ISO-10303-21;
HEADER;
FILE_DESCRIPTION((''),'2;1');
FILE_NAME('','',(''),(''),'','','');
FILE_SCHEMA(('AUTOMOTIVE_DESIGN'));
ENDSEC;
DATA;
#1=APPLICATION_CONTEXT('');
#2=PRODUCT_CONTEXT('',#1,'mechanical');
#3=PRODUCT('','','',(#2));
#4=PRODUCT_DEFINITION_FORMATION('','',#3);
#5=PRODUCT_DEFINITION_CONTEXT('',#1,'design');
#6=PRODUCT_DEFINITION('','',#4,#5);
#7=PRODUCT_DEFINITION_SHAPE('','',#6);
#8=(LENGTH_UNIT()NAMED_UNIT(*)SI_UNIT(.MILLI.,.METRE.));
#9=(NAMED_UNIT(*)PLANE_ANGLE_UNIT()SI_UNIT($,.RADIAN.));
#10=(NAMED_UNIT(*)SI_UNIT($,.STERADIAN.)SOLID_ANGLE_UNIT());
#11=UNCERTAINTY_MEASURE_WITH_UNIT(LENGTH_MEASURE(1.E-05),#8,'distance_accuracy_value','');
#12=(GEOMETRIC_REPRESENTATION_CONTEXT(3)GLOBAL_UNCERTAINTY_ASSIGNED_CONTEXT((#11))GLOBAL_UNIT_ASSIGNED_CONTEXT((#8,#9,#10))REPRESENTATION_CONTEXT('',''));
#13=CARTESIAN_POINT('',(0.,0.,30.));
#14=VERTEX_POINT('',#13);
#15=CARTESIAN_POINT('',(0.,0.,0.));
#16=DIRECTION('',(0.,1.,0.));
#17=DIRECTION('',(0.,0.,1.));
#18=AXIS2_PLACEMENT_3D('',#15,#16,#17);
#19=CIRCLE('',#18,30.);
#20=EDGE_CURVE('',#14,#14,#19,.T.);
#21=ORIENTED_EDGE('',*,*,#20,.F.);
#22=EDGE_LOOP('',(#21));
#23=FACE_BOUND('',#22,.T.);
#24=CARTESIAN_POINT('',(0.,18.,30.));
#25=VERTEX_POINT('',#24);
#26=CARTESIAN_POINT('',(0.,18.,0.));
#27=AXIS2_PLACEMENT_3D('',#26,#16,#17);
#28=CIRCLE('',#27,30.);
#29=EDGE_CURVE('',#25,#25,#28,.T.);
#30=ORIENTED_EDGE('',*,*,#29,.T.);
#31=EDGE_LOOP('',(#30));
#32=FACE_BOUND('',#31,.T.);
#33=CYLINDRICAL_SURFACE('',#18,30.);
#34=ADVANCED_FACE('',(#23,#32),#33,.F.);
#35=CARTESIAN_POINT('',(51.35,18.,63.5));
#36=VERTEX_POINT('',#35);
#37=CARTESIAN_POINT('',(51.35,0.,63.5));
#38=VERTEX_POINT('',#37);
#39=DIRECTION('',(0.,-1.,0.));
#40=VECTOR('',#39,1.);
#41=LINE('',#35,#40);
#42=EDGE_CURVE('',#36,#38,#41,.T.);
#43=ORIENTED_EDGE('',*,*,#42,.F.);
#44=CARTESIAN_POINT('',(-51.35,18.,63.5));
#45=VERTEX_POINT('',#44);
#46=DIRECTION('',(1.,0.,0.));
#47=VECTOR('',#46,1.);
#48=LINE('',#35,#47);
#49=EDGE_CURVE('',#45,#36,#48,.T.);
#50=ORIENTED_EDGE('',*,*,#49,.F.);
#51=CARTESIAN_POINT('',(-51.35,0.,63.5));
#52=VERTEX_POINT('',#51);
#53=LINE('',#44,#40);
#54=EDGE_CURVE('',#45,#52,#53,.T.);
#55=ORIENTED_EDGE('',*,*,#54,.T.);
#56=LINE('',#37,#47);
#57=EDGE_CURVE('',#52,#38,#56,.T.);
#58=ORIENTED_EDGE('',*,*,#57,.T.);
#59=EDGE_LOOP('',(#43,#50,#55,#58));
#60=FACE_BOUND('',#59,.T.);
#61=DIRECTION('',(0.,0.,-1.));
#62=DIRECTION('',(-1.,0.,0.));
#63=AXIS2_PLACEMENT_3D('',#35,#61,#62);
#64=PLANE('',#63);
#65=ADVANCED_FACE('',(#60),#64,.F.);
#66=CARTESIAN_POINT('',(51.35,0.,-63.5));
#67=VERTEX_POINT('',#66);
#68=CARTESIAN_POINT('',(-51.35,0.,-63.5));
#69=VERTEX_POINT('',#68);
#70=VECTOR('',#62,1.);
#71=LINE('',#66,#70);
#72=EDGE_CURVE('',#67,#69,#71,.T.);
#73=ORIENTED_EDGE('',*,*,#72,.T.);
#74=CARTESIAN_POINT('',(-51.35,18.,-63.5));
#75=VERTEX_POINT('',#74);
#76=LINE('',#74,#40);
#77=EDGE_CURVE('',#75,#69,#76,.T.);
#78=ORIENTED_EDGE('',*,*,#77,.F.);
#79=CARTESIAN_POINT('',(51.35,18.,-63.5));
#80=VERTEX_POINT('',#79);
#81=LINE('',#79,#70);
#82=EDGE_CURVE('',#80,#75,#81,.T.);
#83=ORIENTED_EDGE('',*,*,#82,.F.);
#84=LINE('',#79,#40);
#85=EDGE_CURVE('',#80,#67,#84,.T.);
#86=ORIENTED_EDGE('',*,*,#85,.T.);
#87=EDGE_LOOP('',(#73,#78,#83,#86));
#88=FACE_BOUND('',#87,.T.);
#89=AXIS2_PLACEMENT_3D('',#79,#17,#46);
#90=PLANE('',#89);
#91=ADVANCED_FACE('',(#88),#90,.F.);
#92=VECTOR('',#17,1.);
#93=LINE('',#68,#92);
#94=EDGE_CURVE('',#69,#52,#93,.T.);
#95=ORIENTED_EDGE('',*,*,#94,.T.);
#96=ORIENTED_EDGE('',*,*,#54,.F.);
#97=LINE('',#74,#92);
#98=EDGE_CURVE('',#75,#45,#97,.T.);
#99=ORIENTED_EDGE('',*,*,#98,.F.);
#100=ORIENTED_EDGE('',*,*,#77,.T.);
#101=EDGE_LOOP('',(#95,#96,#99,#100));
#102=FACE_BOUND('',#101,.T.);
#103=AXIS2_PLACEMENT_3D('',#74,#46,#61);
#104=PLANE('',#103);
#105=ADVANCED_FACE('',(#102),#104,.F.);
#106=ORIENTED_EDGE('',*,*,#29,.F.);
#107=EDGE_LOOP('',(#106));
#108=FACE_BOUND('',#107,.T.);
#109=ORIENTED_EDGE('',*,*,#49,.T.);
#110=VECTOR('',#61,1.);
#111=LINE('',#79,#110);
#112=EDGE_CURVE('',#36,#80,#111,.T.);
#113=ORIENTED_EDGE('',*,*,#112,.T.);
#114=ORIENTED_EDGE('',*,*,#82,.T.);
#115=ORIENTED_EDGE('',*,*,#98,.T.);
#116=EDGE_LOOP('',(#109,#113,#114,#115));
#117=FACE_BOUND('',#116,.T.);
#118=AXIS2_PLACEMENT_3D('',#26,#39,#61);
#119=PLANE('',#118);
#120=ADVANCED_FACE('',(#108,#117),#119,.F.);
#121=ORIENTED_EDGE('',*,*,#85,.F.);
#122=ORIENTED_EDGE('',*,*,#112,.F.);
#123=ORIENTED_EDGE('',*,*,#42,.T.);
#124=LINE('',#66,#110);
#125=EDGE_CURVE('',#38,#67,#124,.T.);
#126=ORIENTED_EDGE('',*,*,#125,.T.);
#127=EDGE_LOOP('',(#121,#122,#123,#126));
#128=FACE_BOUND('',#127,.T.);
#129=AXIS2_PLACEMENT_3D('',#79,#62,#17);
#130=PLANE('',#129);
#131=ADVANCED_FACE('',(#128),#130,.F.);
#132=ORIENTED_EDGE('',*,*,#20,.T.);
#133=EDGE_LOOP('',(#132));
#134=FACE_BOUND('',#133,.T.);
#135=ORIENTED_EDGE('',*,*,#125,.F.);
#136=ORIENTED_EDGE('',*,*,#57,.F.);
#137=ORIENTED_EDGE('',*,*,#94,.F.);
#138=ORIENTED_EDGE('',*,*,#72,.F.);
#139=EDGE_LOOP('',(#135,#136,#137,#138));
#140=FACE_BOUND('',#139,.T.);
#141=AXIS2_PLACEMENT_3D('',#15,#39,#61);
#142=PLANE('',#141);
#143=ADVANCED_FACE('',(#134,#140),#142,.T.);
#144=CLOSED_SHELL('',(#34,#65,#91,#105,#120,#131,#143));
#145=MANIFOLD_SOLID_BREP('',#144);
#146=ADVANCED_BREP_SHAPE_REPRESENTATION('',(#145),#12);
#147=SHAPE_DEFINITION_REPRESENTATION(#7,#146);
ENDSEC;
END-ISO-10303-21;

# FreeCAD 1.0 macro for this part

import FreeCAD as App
import Part
import Sketcher

V = App.Vector
Q = App.Units.Quantity

doc = App.newDocument("Part")
body = doc.addObject("PartDesign::Body", "Body")

# Sketch on XZ plane
sketch1 = body.newObject("Sketcher::SketchObject", "Sketch")
sketch1.AttachmentSupport = (doc.getObject("XZ_Plane"), [""])
sketch1.MapMode = "FlatFace"
sketch1.addGeometry([
    Part.LineSegment(V(-51.35, -63.5, 0), V(-51.35, 63.5, 0)),
    Part.LineSegment(V(-51.35, 63.5, 0), V(51.35, 63.5, 0)),
    Part.LineSegment(V(51.35, 63.5, 0), V(51.35, -63.5, 0)),
    Part.LineSegment(V(51.35, -63.5, 0), V(-51.35, -63.5, 0)),
], False)
sketch1.addConstraint([
    Sketcher.Constraint("Coincident", 0, 2, 1, 1),
    Sketcher.Constraint("Coincident", 1, 2, 2, 1),
    Sketcher.Constraint("Coincident", 2, 2, 3, 1),
    Sketcher.Constraint("Coincident", 3, 2, 0, 1),
    Sketcher.Constraint("Vertical", 0),
    Sketcher.Constraint("Horizontal", 1),
    Sketcher.Constraint("Vertical", 2),
    Sketcher.Constraint("Horizontal", 3),
    Sketcher.Constraint("Symmetric", 0, 2, 2, 2, -1, 1),
    Sketcher.Constraint("DistanceY", 0, 1, 0, 2, Q("127 mm")),
    Sketcher.Constraint("DistanceX", 1, 1, 1, 2, Q("102.7 mm")),
])
pad1 = body.newObject("PartDesign::Pad", "Pad")
pad1.Profile = sketch1
pad1.Length = 18
pad1.Reversed = True

# Sketch on XZ plane
sketch2 = body.newObject("Sketcher::SketchObject", "Sketch001")
sketch2.AttachmentSupport = (doc.getObject("XZ_Plane"), [""])
sketch2.MapMode = "FlatFace"
sketch2.AttachmentOffset = App.Placement(V(0, 0, -18), App.Rotation())
sketch2.addGeometry(Part.Circle(V(0, 0, 0), V(0, 0, 1), 30), False)
sketch2.addConstraint([
    Sketcher.Constraint("Coincident", 0, 3, -1, 1),
    Sketcher.Constraint("Diameter", 0, Q("60 mm")),
])
pocket1 = body.newObject("PartDesign::Pocket", "Pocket")
pocket1.Profile = sketch2
pocket1.Type = "ThroughAll"
pocket1.Reversed = True

doc.recompute()
